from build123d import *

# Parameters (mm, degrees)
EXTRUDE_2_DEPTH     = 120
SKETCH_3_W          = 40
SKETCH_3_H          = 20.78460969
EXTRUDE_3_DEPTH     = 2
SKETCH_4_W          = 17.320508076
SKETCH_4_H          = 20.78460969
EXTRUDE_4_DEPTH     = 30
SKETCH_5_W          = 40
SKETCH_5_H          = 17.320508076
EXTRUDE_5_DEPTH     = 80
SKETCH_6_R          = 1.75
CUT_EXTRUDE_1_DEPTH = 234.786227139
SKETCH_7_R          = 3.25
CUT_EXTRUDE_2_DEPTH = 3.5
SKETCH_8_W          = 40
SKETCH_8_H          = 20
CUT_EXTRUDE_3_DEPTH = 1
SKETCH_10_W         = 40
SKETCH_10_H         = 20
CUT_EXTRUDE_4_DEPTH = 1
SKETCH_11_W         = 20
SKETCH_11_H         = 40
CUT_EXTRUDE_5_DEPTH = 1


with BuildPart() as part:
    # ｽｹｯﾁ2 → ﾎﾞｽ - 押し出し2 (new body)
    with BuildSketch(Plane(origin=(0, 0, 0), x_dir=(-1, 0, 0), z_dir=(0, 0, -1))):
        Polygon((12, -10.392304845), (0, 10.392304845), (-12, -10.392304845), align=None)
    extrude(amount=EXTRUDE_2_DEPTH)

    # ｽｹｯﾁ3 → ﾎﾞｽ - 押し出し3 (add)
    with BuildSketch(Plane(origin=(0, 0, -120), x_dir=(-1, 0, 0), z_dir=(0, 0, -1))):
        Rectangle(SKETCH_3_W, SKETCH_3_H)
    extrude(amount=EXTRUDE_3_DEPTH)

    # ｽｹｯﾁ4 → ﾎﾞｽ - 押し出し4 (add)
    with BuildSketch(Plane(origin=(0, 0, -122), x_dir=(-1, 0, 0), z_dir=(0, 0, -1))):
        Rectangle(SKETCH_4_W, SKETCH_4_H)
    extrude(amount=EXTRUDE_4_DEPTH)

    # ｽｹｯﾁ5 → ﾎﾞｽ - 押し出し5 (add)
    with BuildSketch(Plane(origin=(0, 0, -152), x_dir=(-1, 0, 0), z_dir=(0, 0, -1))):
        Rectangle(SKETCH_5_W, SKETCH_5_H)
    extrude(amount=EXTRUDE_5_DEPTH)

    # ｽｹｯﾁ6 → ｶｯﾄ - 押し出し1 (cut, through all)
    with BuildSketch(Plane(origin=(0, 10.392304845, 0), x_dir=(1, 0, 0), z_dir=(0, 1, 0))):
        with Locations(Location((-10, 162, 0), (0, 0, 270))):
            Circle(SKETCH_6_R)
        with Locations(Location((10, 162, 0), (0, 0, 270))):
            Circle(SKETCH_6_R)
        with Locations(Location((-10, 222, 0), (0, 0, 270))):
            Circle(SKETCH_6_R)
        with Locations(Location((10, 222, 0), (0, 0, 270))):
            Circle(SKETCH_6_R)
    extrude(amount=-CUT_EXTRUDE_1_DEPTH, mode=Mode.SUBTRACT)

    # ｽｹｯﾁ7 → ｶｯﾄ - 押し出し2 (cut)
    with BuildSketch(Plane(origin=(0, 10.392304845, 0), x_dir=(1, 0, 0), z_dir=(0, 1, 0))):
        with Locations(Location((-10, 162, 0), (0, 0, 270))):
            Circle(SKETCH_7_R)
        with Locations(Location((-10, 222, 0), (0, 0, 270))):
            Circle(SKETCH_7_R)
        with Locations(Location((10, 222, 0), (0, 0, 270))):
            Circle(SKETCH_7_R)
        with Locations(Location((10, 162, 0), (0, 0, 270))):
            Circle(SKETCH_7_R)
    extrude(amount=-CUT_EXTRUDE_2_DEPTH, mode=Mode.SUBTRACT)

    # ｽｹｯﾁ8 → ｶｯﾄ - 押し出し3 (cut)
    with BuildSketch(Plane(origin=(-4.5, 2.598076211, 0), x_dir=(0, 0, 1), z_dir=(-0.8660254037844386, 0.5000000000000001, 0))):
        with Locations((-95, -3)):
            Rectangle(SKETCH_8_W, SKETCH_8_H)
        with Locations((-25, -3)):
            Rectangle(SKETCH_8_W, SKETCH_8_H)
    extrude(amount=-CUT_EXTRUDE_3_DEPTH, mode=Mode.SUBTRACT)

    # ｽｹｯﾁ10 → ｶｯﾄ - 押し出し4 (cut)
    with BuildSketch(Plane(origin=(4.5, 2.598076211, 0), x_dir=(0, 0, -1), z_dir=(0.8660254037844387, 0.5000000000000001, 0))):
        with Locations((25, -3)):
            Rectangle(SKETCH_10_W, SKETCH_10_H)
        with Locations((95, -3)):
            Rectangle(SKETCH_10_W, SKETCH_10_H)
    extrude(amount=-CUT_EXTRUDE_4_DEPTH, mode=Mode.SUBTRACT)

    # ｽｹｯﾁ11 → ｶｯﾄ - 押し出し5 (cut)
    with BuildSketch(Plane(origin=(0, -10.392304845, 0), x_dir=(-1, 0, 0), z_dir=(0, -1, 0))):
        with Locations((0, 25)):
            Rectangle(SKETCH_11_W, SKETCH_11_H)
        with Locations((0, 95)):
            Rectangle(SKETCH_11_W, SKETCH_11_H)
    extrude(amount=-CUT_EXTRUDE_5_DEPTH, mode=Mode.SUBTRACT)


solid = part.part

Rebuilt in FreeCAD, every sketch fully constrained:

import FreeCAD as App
import Part
import Sketcher

V = App.Vector
Q = App.Units.Quantity

doc = App.newDocument("Part")
body = doc.addObject("PartDesign::Body", "Body")

# Sketch on XY plane
sketch1 = doc.addObject("Sketcher::SketchObject", "Sketch")
body.addObject(sketch1)
sketch1.AttachmentSupport = (doc.XY_Plane, [""])
sketch1.MapMode = "FlatFace"
sketch1.addGeometry([
    Part.LineSegment(V(-12, -10, 0), V(0, 10, 0)),
    Part.LineSegment(V(0, 10, 0), V(12, -10, 0)),
    Part.LineSegment(V(12, -10, 0), V(-12, -10, 0)),
], False)
sketch1.addConstraint([
    Sketcher.Constraint("Coincident", 0, 2, 1, 1),
    Sketcher.Constraint("Coincident", 1, 2, 2, 1),
    Sketcher.Constraint("Coincident", 2, 2, 0, 1),
    Sketcher.Constraint("Horizontal", 2),
    Sketcher.Constraint("PointOnObject", 0, 2, -2),
    Sketcher.Constraint("Equal", 0, 1),
    Sketcher.Constraint("DistanceX", 2, 2, 2, 1, 24.0),
    Sketcher.Constraint("Angle", 0, Q("60 deg")),
    Sketcher.Constraint("DistanceY", -1, 1, 0, 2, 10.392305),
])
pad1 = doc.addObject("PartDesign::Pad", "Pad")
body.addObject(pad1)
pad1.Profile = sketch1
pad1.Length = 120
pad1.Reversed = True

# Sketch on XY plane
sketch2 = doc.addObject("Sketcher::SketchObject", "Sketch001")
body.addObject(sketch2)
sketch2.AttachmentSupport = (doc.XY_Plane, [""])
sketch2.MapMode = "FlatFace"
sketch2.AttachmentOffset = App.Placement(V(0, 0, -120), App.Rotation())
sketch2.addGeometry([
    Part.LineSegment(V(20, 10, 0), V(20, -10, 0)),
    Part.LineSegment(V(20, -10, 0), V(-20, -10, 0)),
    Part.LineSegment(V(-20, -10, 0), V(-20, 10, 0)),
    Part.LineSegment(V(-20, 10, 0), V(20, 10, 0)),
], False)
sketch2.addConstraint([
    Sketcher.Constraint("Coincident", 0, 2, 1, 1),
    Sketcher.Constraint("Coincident", 1, 2, 2, 1),
    Sketcher.Constraint("Coincident", 2, 2, 3, 1),
    Sketcher.Constraint("Coincident", 3, 2, 0, 1),
    Sketcher.Constraint("Vertical", 0),
    Sketcher.Constraint("Horizontal", 1),
    Sketcher.Constraint("Vertical", 2),
    Sketcher.Constraint("Horizontal", 3),
    Sketcher.Constraint("Symmetric", 0, 2, 2, 2, -1, 1),
    Sketcher.Constraint("DistanceX", 1, 2, 1, 1, 40.0),
    Sketcher.Constraint("DistanceY", 0, 2, 0, 1, 20.78461),
])
pad2 = doc.addObject("PartDesign::Pad", "Pad001")
body.addObject(pad2)
pad2.Profile = sketch2
pad2.Length = 2
pad2.Reversed = True

# Sketch on XY plane
sketch3 = doc.addObject("Sketcher::SketchObject", "Sketch002")
body.addObject(sketch3)
sketch3.AttachmentSupport = (doc.XY_Plane, [""])
sketch3.MapMode = "FlatFace"
sketch3.AttachmentOffset = App.Placement(V(0, 0, -122), App.Rotation())
sketch3.addGeometry([
    Part.LineSegment(V(9, 10, 0), V(9, -10, 0)),
    Part.LineSegment(V(9, -10, 0), V(-9, -10, 0)),
    Part.LineSegment(V(-9, -10, 0), V(-9, 10, 0)),
    Part.LineSegment(V(-9, 10, 0), V(9, 10, 0)),
], False)
sketch3.addConstraint([
    Sketcher.Constraint("Coincident", 0, 2, 1, 1),
    Sketcher.Constraint("Coincident", 1, 2, 2, 1),
    Sketcher.Constraint("Coincident", 2, 2, 3, 1),
    Sketcher.Constraint("Coincident", 3, 2, 0, 1),
    Sketcher.Constraint("Vertical", 0),
    Sketcher.Constraint("Horizontal", 1),
    Sketcher.Constraint("Vertical", 2),
    Sketcher.Constraint("Horizontal", 3),
    Sketcher.Constraint("Symmetric", 0, 2, 2, 2, -1, 1),
    Sketcher.Constraint("DistanceX", 1, 2, 1, 1, 17.320508),
    Sketcher.Constraint("DistanceY", 0, 2, 0, 1, 20.78461),
])
pad3 = doc.addObject("PartDesign::Pad", "Pad002")
body.addObject(pad3)
pad3.Profile = sketch3
pad3.Length = 30
pad3.Reversed = True

# Sketch on XY plane
sketch4 = doc.addObject("Sketcher::SketchObject", "Sketch003")
body.addObject(sketch4)
sketch4.AttachmentSupport = (doc.XY_Plane, [""])
sketch4.MapMode = "FlatFace"
sketch4.AttachmentOffset = App.Placement(V(0, 0, -152), App.Rotation())
sketch4.addGeometry([
    Part.LineSegment(V(20, 9, 0), V(20, -9, 0)),
    Part.LineSegment(V(20, -9, 0), V(-20, -9, 0)),
    Part.LineSegment(V(-20, -9, 0), V(-20, 9, 0)),
    Part.LineSegment(V(-20, 9, 0), V(20, 9, 0)),
], False)
sketch4.addConstraint([
    Sketcher.Constraint("Coincident", 0, 2, 1, 1),
    Sketcher.Constraint("Coincident", 1, 2, 2, 1),
    Sketcher.Constraint("Coincident", 2, 2, 3, 1),
    Sketcher.Constraint("Coincident", 3, 2, 0, 1),
    Sketcher.Constraint("Vertical", 0),
    Sketcher.Constraint("Horizontal", 1),
    Sketcher.Constraint("Vertical", 2),
    Sketcher.Constraint("Horizontal", 3),
    Sketcher.Constraint("Symmetric", 0, 2, 2, 2, -1, 1),
    Sketcher.Constraint("DistanceX", 1, 2, 1, 1, 40.0),
    Sketcher.Constraint("DistanceY", 0, 2, 0, 1, 17.320508),
])
pad4 = doc.addObject("PartDesign::Pad", "Pad003")
body.addObject(pad4)
pad4.Profile = sketch4
pad4.Length = 80
pad4.Reversed = True

# Sketch on XZ plane
sketch5 = doc.addObject("Sketcher::SketchObject", "Sketch004")
body.addObject(sketch5)
sketch5.AttachmentSupport = (doc.XZ_Plane, [""])
sketch5.MapMode = "FlatFace"
sketch5.AttachmentOffset = App.Placement(V(0, 0, -10.392305), App.Rotation())
sketch5.addGeometry([
    Part.Circle(V(-10, -162, 0), V(0, 0, 1), 1.8),
    Part.Circle(V(10, -162, 0), V(0, 0, 1), 1.8),
    Part.Circle(V(-10, -222, 0), V(0, 0, 1), 1.8),
    Part.Circle(V(10, -222, 0), V(0, 0, 1), 1.8),
], False)
sketch5.addConstraint([
    Sketcher.Constraint("Equal", 0, 1),
    Sketcher.Constraint("Equal", 1, 2),
    Sketcher.Constraint("Equal", 2, 3),
    Sketcher.Constraint("Symmetric", 0, 3, 1, 3, -2),
    Sketcher.Constraint("Symmetric", 2, 3, 3, 3, -2),
    Sketcher.Constraint("Vertical", 0, 3, 2, 3),
    Sketcher.Constraint("Diameter", 0, 3.5),
    Sketcher.Constraint("DistanceX", 0, 3, -1, 1, 10.0),
    Sketcher.Constraint("DistanceY", 0, 3, -1, 1, 162.0),
    Sketcher.Constraint("DistanceY", 2, 3, -1, 1, 222.0),
])
pocket1 = doc.addObject("PartDesign::Pocket", "Pocket")
body.addObject(pocket1)
pocket1.Profile = sketch5
pocket1.Type = "ThroughAll"
pocket1.Reversed = True

# Sketch on XZ plane
sketch6 = doc.addObject("Sketcher::SketchObject", "Sketch005")
body.addObject(sketch6)
sketch6.AttachmentSupport = (doc.XZ_Plane, [""])
sketch6.MapMode = "FlatFace"
sketch6.AttachmentOffset = App.Placement(V(0, 0, -10.392305), App.Rotation())
sketch6.addGeometry([
    Part.Circle(V(-10, -162, 0), V(0, 0, 1), 3.2),
    Part.Circle(V(-10, -222, 0), V(0, 0, 1), 3.2),
    Part.Circle(V(10, -222, 0), V(0, 0, 1), 3.2),
    Part.Circle(V(10, -162, 0), V(0, 0, 1), 3.2),
], False)
sketch6.addConstraint([
    Sketcher.Constraint("Equal", 0, 1),
    Sketcher.Constraint("Equal", 1, 2),
    Sketcher.Constraint("Equal", 2, 3),
    Sketcher.Constraint("Symmetric", 1, 3, 2, 3, -2),
    Sketcher.Constraint("Symmetric", 0, 3, 3, 3, -2),
    Sketcher.Constraint("Vertical", 0, 3, 1, 3),
    Sketcher.Constraint("Diameter", 0, 6.5),
    Sketcher.Constraint("DistanceX", 0, 3, -1, 1, 10.0),
    Sketcher.Constraint("DistanceY", 0, 3, -1, 1, 162.0),
    Sketcher.Constraint("DistanceY", 1, 3, -1, 1, 222.0),
])
pocket2 = doc.addObject("PartDesign::Pocket", "Pocket001")
body.addObject(pocket2)
pocket2.Profile = sketch6
pocket2.Length = 3.5
pocket2.Reversed = True

# Sketch on an angled plane
sketch7 = doc.addObject("Sketcher::SketchObject", "Sketch006")
body.addObject(sketch7)
sketch7.Placement = App.Placement(V(-4.5, 2.598076, 0), App.Rotation(V(0, 0, 1), V(0.5, 0.866025404, 0), V(-0.866025404, 0.5, 0), "ZXY"))
sketch7.addGeometry([
    Part.LineSegment(V(-115, 7, 0), V(-115, -13, 0)),  # 0
    Part.LineSegment(V(-115, -13, 0), V(-75, -13, 0)),  # 1
    Part.LineSegment(V(-75, -13, 0), V(-75, 7, 0)),  # 2
    Part.LineSegment(V(-75, 7, 0), V(-115, 7, 0)),  # 3
    Part.LineSegment(V(-45, 7, 0), V(-45, -13, 0)),  # 4
    Part.LineSegment(V(-45, -13, 0), V(-5, -13, 0)),  # 5
    Part.LineSegment(V(-5, -13, 0), V(-5, 7, 0)),  # 6
    Part.LineSegment(V(-5, 7, 0), V(-45, 7, 0)),  # 7
], False)
sketch7.addConstraint([
    Sketcher.Constraint("Coincident", 0, 2, 1, 1),
    Sketcher.Constraint("Coincident", 1, 2, 2, 1),
    Sketcher.Constraint("Coincident", 2, 2, 3, 1),
    Sketcher.Constraint("Coincident", 3, 2, 0, 1),
    Sketcher.Constraint("Coincident", 4, 2, 5, 1),
    Sketcher.Constraint("Coincident", 5, 2, 6, 1),
    Sketcher.Constraint("Coincident", 6, 2, 7, 1),
    Sketcher.Constraint("Coincident", 7, 2, 4, 1),
    Sketcher.Constraint("Vertical", 0),
    Sketcher.Constraint("Horizontal", 1),
    Sketcher.Constraint("Vertical", 2),
    Sketcher.Constraint("Horizontal", 3),
    Sketcher.Constraint("Vertical", 4),
    Sketcher.Constraint("Horizontal", 5),
    Sketcher.Constraint("Vertical", 6),
    Sketcher.Constraint("Horizontal", 7),
    Sketcher.Constraint("Horizontal", 1, 2, 4, 2),
    Sketcher.Constraint("Horizontal", 3, 2, 6, 2),
    Sketcher.Constraint("Equal", 3, 5),
    Sketcher.Constraint("DistanceX", 1, 1, 1, 2, 40.0),
    Sketcher.Constraint("DistanceY", 0, 2, 0, 1, 20.0),
    Sketcher.Constraint("DistanceX", 0, 2, -1, 1, 115.0),
    Sketcher.Constraint("DistanceY", 0, 2, -1, 1, 13.0),
    Sketcher.Constraint("DistanceX", 4, 2, -1, 1, 45.0),
])
pocket3 = doc.addObject("PartDesign::Pocket", "Pocket002")
body.addObject(pocket3)
pocket3.Profile = sketch7
pocket3.Length = 1

# Sketch on an angled plane
sketch8 = doc.addObject("Sketcher::SketchObject", "Sketch007")
body.addObject(sketch8)
sketch8.Placement = App.Placement(V(4.5, 2.598076, 0), App.Rotation(V(0, 0, -1), V(-0.5, 0.866025404, 0), V(0.866025404, 0.5, 0), "ZXY"))
sketch8.addGeometry([
    Part.LineSegment(V(5, 7, 0), V(5, -13, 0)),  # 0
    Part.LineSegment(V(5, -13, 0), V(45, -13, 0)),  # 1
    Part.LineSegment(V(45, -13, 0), V(45, 7, 0)),  # 2
    Part.LineSegment(V(45, 7, 0), V(5, 7, 0)),  # 3
    Part.LineSegment(V(75, 7, 0), V(75, -13, 0)),  # 4
    Part.LineSegment(V(75, -13, 0), V(115, -13, 0)),  # 5
    Part.LineSegment(V(115, -13, 0), V(115, 7, 0)),  # 6
    Part.LineSegment(V(115, 7, 0), V(75, 7, 0)),  # 7
], False)
sketch8.addConstraint([
    Sketcher.Constraint("Coincident", 0, 2, 1, 1),
    Sketcher.Constraint("Coincident", 1, 2, 2, 1),
    Sketcher.Constraint("Coincident", 2, 2, 3, 1),
    Sketcher.Constraint("Coincident", 3, 2, 0, 1),
    Sketcher.Constraint("Coincident", 4, 2, 5, 1),
    Sketcher.Constraint("Coincident", 5, 2, 6, 1),
    Sketcher.Constraint("Coincident", 6, 2, 7, 1),
    Sketcher.Constraint("Coincident", 7, 2, 4, 1),
    Sketcher.Constraint("Vertical", 0),
    Sketcher.Constraint("Horizontal", 1),
    Sketcher.Constraint("Vertical", 2),
    Sketcher.Constraint("Horizontal", 3),
    Sketcher.Constraint("Vertical", 4),
    Sketcher.Constraint("Horizontal", 5),
    Sketcher.Constraint("Vertical", 6),
    Sketcher.Constraint("Horizontal", 7),
    Sketcher.Constraint("Horizontal", 1, 2, 4, 2),
    Sketcher.Constraint("Horizontal", 3, 2, 6, 2),
    Sketcher.Constraint("Equal", 3, 5),
    Sketcher.Constraint("DistanceX", 1, 1, 1, 2, 40.0),
    Sketcher.Constraint("DistanceY", 0, 2, 0, 1, 20.0),
    Sketcher.Constraint("DistanceX", -1, 1, 0, 2, 5.0),
    Sketcher.Constraint("DistanceY", 0, 2, -1, 1, 13.0),
    Sketcher.Constraint("DistanceX", -1, 1, 4, 2, 75.0),
])
pocket4 = doc.addObject("PartDesign::Pocket", "Pocket003")
body.addObject(pocket4)
pocket4.Profile = sketch8
pocket4.Length = 1

# Sketch on XZ plane
sketch9 = doc.addObject("Sketcher::SketchObject", "Sketch008")
body.addObject(sketch9)
sketch9.AttachmentSupport = (doc.XZ_Plane, [""])
sketch9.MapMode = "FlatFace"
sketch9.AttachmentOffset = App.Placement(V(0, 0, 10.392305), App.Rotation())
sketch9.addGeometry([
    Part.LineSegment(V(10, -45, 0), V(10, -5, 0)),  # 0
    Part.LineSegment(V(10, -5, 0), V(-10, -5, 0)),  # 1
    Part.LineSegment(V(-10, -5, 0), V(-10, -45, 0)),  # 2
    Part.LineSegment(V(-10, -45, 0), V(10, -45, 0)),  # 3
    Part.LineSegment(V(10, -115, 0), V(10, -75, 0)),  # 4
    Part.LineSegment(V(10, -75, 0), V(-10, -75, 0)),  # 5
    Part.LineSegment(V(-10, -75, 0), V(-10, -115, 0)),  # 6
    Part.LineSegment(V(-10, -115, 0), V(10, -115, 0)),  # 7
], False)
sketch9.addConstraint([
    Sketcher.Constraint("Coincident", 0, 2, 1, 1),
    Sketcher.Constraint("Coincident", 1, 2, 2, 1),
    Sketcher.Constraint("Coincident", 2, 2, 3, 1),
    Sketcher.Constraint("Coincident", 3, 2, 0, 1),
    Sketcher.Constraint("Coincident", 4, 2, 5, 1),
    Sketcher.Constraint("Coincident", 5, 2, 6, 1),
    Sketcher.Constraint("Coincident", 6, 2, 7, 1),
    Sketcher.Constraint("Coincident", 7, 2, 4, 1),
    Sketcher.Constraint("Vertical", 0),
    Sketcher.Constraint("Horizontal", 1),
    Sketcher.Constraint("Vertical", 2),
    Sketcher.Constraint("Horizontal", 3),
    Sketcher.Constraint("Vertical", 4),
    Sketcher.Constraint("Horizontal", 5),
    Sketcher.Constraint("Vertical", 6),
    Sketcher.Constraint("Horizontal", 7),
    Sketcher.Constraint("Vertical", 3, 2, 4, 2),
    Sketcher.Constraint("Vertical", 2, 2, 5, 2),
    Sketcher.Constraint("Equal", 2, 4),
    Sketcher.Constraint("DistanceX", 1, 2, 1, 1, 20.0),
    Sketcher.Constraint("DistanceY", 0, 1, 0, 2, 40.0),
    Sketcher.Constraint("DistanceX", -1, 1, 0, 2, 10.0),
    Sketcher.Constraint("DistanceY", 0, 2, -1, 1, 5.0),
    Sketcher.Constraint("DistanceY", 4, 2, -1, 1, 75.0),
])
pocket5 = doc.addObject("PartDesign::Pocket", "Pocket004")
body.addObject(pocket5)
pocket5.Profile = sketch9
pocket5.Length = 1

doc.recompute()
